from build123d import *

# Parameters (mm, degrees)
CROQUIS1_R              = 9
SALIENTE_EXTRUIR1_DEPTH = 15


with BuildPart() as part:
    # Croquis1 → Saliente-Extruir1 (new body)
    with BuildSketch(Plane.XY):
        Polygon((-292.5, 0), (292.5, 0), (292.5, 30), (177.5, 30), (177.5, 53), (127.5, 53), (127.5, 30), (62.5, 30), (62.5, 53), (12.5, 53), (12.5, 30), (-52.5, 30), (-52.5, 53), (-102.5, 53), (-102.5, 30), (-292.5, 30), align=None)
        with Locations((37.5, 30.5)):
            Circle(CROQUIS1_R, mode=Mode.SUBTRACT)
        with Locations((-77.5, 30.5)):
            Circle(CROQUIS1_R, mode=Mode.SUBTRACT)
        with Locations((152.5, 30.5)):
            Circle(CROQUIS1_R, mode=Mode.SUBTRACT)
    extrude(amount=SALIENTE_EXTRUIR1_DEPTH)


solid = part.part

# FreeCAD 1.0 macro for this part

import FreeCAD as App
import Part
import Sketcher
from FreeCAD import Vector

doc = App.newDocument("Part")
body = doc.addObject("PartDesign::Body", "Body")

sketch1 = body.newObject("Sketcher::SketchObject", "Sketch")
sketch1.AttachmentSupport = (doc.getObject("XY_Plane"), [""])
sketch1.MapMode = "FlatFace"
sketch1.addGeometry([
    Part.LineSegment(Vector(-292, 0, 0), Vector(292, 0, 0)),
    Part.LineSegment(Vector(292, 0, 0), Vector(292, 30, 0)),
    Part.LineSegment(Vector(292, 30, 0), Vector(178, 30, 0)),
    Part.LineSegment(Vector(178, 30, 0), Vector(178, 53, 0)),
    Part.LineSegment(Vector(178, 53, 0), Vector(128, 53, 0)),
    Part.LineSegment(Vector(128, 53, 0), Vector(128, 30, 0)),
    Part.LineSegment(Vector(128, 30, 0), Vector(62, 30, 0)),
    Part.LineSegment(Vector(62, 30, 0), Vector(62, 53, 0)),
    Part.LineSegment(Vector(62, 53, 0), Vector(12, 53, 0)),
    Part.LineSegment(Vector(12, 53, 0), Vector(12, 30, 0)),
    Part.LineSegment(Vector(12, 30, 0), Vector(-52, 30, 0)),
    Part.LineSegment(Vector(-52, 30, 0), Vector(-52, 53, 0)),
    Part.LineSegment(Vector(-52, 53, 0), Vector(-102, 53, 0)),
    Part.LineSegment(Vector(-102, 53, 0), Vector(-102, 30, 0)),
    Part.LineSegment(Vector(-102, 30, 0), Vector(-292, 30, 0)),
    Part.LineSegment(Vector(-292, 30, 0), Vector(-292, 0, 0)),
    Part.Circle(Vector(-78, 30, 0), Vector(0, 0, 1), 9),
    Part.Circle(Vector(38, 30, 0), Vector(0, 0, 1), 9),
    Part.Circle(Vector(152, 30, 0), Vector(0, 0, 1), 9),
], False)
sketch1.addConstraint([
    Sketcher.Constraint("Coincident", 0, 2, 1, 1),
    Sketcher.Constraint("Coincident", 1, 2, 2, 1),
    Sketcher.Constraint("Coincident", 2, 2, 3, 1),
    Sketcher.Constraint("Coincident", 3, 2, 4, 1),
    Sketcher.Constraint("Coincident", 4, 2, 5, 1),
    Sketcher.Constraint("Coincident", 5, 2, 6, 1),
    Sketcher.Constraint("Coincident", 6, 2, 7, 1),
    Sketcher.Constraint("Coincident", 7, 2, 8, 1),
    Sketcher.Constraint("Coincident", 8, 2, 9, 1),
    Sketcher.Constraint("Coincident", 9, 2, 10, 1),
    Sketcher.Constraint("Coincident", 10, 2, 11, 1),
    Sketcher.Constraint("Coincident", 11, 2, 12, 1),
    Sketcher.Constraint("Coincident", 12, 2, 13, 1),
    Sketcher.Constraint("Coincident", 13, 2, 14, 1),
    Sketcher.Constraint("Coincident", 14, 2, 15, 1),
    Sketcher.Constraint("Coincident", 15, 2, 0, 1),
    Sketcher.Constraint("Horizontal", 0),
    Sketcher.Constraint("Vertical", 1),
    Sketcher.Constraint("Horizontal", 2),
    Sketcher.Constraint("Vertical", 3),
    Sketcher.Constraint("Horizontal", 4),
    Sketcher.Constraint("Vertical", 5),
    Sketcher.Constraint("Horizontal", 6),
    Sketcher.Constraint("Vertical", 7),
    Sketcher.Constraint("Horizontal", 8),
    Sketcher.Constraint("Vertical", 9),
    Sketcher.Constraint("Horizontal", 10),
    Sketcher.Constraint("Vertical", 11),
    Sketcher.Constraint("Horizontal", 12),
    Sketcher.Constraint("Vertical", 13),
    Sketcher.Constraint("Horizontal", 14),
    Sketcher.Constraint("Vertical", 15),
    Sketcher.Constraint("Equal", 16, 17),
    Sketcher.Constraint("Equal", 17, 18),
    Sketcher.Constraint("Symmetric", 0, 2, 15, 2, -1, 1),
    Sketcher.Constraint("Horizontal", 16, 3, 17, 3),
    Sketcher.Constraint("Horizontal", 17, 3, 18, 3),
    Sketcher.Constraint("Horizontal", 2, 2, 5, 2),
    Sketcher.Constraint("Horizontal", 4, 2, 7, 2),
    Sketcher.Constraint("Horizontal", 6, 2, 9, 2),
    Sketcher.Constraint("Horizontal", 8, 2, 11, 2),
    Sketcher.Constraint("Horizontal", 10, 2, 13, 2),
    Sketcher.Constraint("Equal", 4, 8),
    Sketcher.Constraint("Equal", 6, 10),
    Sketcher.Constraint("Equal", 8, 12),
    Sketcher.Constraint("Diameter", 16, 18.0),
    Sketcher.Constraint("DistanceX", 0, 1, 0, 2, 585.0),
    Sketcher.Constraint("DistanceX", 2, 2, 2, 1, 115.0),
    Sketcher.Constraint("DistanceX", 4, 2, 4, 1, 50.0),
    Sketcher.Constraint("DistanceX", 6, 2, 6, 1, 65.0),
    Sketcher.Constraint("DistanceY", 1, 1, 1, 2, 30.0),
    Sketcher.Constraint("DistanceY", 3, 1, 3, 2, 23.0),
    Sketcher.Constraint("DistanceX", 16, 3, 17, 3, 115.0),
    Sketcher.Constraint("DistanceX", 17, 3, 18, 3, 115.0),
    Sketcher.Constraint("DistanceX", 18, 3, 0, 2, 140.0),
    Sketcher.Constraint("DistanceY", -1, 1, 16, 3, 30.5),
])
pad1 = body.newObject("PartDesign::Pad", "Pad")
pad1.Profile = sketch1
pad1.Length = 15

doc.recompute()
